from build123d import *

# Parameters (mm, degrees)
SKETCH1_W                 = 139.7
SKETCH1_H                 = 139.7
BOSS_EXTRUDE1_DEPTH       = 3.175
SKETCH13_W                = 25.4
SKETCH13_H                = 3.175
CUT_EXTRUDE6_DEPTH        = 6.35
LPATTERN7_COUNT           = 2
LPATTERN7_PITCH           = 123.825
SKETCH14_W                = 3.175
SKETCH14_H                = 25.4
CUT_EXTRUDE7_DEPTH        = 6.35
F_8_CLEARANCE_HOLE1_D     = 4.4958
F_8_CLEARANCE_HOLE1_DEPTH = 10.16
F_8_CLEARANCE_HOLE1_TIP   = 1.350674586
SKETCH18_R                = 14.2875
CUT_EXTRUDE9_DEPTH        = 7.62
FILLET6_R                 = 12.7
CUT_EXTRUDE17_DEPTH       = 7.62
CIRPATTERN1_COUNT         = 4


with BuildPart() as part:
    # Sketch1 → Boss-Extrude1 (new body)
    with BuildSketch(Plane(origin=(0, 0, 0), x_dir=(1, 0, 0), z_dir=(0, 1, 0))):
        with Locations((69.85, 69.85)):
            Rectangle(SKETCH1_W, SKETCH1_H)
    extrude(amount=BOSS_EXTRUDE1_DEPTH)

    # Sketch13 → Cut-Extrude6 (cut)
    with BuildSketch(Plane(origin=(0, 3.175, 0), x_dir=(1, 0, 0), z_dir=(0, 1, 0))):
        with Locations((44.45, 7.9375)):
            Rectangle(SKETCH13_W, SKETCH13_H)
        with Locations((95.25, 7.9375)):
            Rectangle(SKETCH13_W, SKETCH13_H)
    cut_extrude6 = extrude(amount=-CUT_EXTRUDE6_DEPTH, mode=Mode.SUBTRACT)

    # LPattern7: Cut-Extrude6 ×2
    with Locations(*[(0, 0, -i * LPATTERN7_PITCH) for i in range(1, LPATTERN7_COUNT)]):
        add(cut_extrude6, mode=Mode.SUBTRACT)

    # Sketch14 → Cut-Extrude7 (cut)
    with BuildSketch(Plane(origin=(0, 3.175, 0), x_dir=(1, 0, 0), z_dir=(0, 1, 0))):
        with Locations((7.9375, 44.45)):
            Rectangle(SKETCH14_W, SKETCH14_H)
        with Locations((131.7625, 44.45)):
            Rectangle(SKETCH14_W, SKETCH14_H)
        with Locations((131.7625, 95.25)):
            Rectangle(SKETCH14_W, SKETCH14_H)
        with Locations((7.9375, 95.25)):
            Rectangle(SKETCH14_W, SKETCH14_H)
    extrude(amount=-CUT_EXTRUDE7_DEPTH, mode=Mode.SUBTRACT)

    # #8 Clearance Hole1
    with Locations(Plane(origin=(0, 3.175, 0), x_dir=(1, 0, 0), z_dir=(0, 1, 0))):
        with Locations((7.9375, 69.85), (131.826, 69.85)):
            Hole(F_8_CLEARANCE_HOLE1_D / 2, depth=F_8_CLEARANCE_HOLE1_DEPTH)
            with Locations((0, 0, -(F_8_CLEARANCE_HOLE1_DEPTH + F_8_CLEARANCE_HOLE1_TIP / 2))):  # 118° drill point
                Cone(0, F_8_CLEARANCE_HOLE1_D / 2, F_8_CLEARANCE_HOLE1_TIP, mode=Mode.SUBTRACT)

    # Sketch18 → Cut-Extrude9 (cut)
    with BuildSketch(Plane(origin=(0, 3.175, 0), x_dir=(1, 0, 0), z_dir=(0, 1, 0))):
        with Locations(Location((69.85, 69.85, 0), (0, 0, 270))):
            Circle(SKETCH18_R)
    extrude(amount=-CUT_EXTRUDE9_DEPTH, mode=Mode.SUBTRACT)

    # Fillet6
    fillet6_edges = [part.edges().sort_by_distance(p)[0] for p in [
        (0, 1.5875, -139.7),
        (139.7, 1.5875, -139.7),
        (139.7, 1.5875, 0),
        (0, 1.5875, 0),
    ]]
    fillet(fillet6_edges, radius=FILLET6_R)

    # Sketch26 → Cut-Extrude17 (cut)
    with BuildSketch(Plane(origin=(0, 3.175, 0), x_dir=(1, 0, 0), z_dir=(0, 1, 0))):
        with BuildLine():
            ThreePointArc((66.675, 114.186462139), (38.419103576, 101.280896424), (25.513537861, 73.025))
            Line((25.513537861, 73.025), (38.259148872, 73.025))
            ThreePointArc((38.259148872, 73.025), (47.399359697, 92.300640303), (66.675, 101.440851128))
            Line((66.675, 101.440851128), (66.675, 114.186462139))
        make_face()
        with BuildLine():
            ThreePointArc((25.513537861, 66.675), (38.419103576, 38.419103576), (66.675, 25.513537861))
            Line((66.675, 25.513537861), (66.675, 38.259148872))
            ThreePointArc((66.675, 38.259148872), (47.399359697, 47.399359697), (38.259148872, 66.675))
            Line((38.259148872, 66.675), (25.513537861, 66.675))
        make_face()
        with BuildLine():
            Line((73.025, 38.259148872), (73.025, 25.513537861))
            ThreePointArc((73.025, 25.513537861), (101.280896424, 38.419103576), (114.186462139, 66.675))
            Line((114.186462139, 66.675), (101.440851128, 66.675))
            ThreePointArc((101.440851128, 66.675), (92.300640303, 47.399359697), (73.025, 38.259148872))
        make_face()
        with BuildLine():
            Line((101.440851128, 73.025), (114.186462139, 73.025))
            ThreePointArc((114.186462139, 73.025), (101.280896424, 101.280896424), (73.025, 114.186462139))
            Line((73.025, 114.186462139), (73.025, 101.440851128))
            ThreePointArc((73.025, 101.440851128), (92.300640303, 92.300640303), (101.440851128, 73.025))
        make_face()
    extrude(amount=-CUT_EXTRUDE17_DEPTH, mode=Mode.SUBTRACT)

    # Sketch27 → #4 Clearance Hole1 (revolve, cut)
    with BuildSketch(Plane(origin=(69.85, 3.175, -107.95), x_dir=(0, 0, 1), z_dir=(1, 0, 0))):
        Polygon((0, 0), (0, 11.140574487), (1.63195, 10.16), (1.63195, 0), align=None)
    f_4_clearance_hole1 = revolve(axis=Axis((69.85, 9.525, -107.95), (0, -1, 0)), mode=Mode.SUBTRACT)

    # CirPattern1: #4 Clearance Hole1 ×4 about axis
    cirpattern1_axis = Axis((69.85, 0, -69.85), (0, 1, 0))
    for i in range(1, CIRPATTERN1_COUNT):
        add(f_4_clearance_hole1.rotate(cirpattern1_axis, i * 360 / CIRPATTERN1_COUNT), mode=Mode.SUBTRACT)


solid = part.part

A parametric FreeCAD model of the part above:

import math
import FreeCAD as App
import Part
import Sketcher
Q = App.Units.Quantity


def edges_at(feature, points):
    """Names of the edges that pass closest to the given points."""
    edges = feature.Shape.Edges
    near = lambda p: min(range(len(edges)), key=lambda i: edges[i].distToShape(Part.Vertex(*p))[0])
    return sorted({f"Edge{near(p) + 1}" for p in points})

doc = App.newDocument("Part")
params = doc.addObject("Spreadsheet::Sheet", "Params")
for row, (alias, value) in enumerate([
    ("sketch1_width", "5.5 in"),
    ("pad1_length", "0.125 in"),
    ("sketch2_width", "1 in"),
    ("sketch2_height", "0.125 in"),
    ("pocket1_length", "0.25 in"),
    ("linearpattern_pitch", "4.875 in"),
    ("sketch3_height", "1 in"),
    ("sketch3_width", "0.125 in"),
    ("pocket2_length", "0.25 in"),
    ("sketch4_diameter", "0.177 in"),
    ("hole_diameter", "0.177 in"),
    ("hole_depth", "0.4 in"),
    ("sketch5_diameter", "1.125 in"),
    ("pocket3_length", "0.3 in"),
    ("fillet_radius", "0.5 in"),
    ("sketch6_radius", "1.75 in"),
    ("sketch6_radius2", "1.25 in"),
    ("pocket4_length", "0.3 in"),
    ("sketch7_width", "0.4 in"),
    ("groove_angle", "360 deg"),
], start=1):
    params.set(f"A{row}", alias)
    params.set(f"B{row}", "=" + value)
    params.setAlias(f"B{row}", alias)

body = doc.addObject("PartDesign::Body", "Body")

# Sketch on XZ plane
sketch1 = body.newObject("Sketcher::SketchObject", "Sketch")
sketch1.AttachmentSupport = (doc.getObject("XZ_Plane"), [""])
sketch1.MapMode = "FlatFace"
sketch1.addGeometry([
    Part.LineSegment(App.Vector(0, -139.7, 0), App.Vector(0, 0, 0)),
    Part.LineSegment(App.Vector(0, 0, 0), App.Vector(139.7, 0, 0)),
    Part.LineSegment(App.Vector(139.7, 0, 0), App.Vector(139.7, -139.7, 0)),
    Part.LineSegment(App.Vector(139.7, -139.7, 0), App.Vector(0, -139.7, 0)),
], False)
sketch1.addConstraint([
    Sketcher.Constraint("Coincident", 0, 2, 1, 1),
    Sketcher.Constraint("Coincident", 1, 2, 2, 1),
    Sketcher.Constraint("Coincident", 2, 2, 3, 1),
    Sketcher.Constraint("Coincident", 3, 2, 0, 1),
    Sketcher.Constraint("Vertical", 0),
    Sketcher.Constraint("Horizontal", 1),
    Sketcher.Constraint("Vertical", 2),
    Sketcher.Constraint("Horizontal", 3),
    Sketcher.Constraint("Coincident", 0, 2, -1, 1),
    Sketcher.Constraint("Equal", 3, 0),
    Sketcher.Constraint("DistanceX", 1, 1, 1, 2, Q("5.5 in")),
])
sketch1.setExpression("Constraints[10]", "Params.sketch1_width")
pad1 = body.newObject("PartDesign::Pad", "Pad")
pad1.Profile = sketch1
pad1.setExpression("Length", "Params.pad1_length")
pad1.Reversed = True

# Sketch on XZ plane
sketch2 = body.newObject("Sketcher::SketchObject", "Sketch001")
sketch2.AttachmentSupport = (doc.getObject("XZ_Plane"), [""])
sketch2.MapMode = "FlatFace"
sketch2.AttachmentOffset = App.Placement(App.Vector(0, 0, -0.125 * 25.4), App.Rotation())
sketch2.addGeometry([
    Part.LineSegment(App.Vector(31.75, -9.525, 0), App.Vector(31.75, -6.35, 0)),  # 0
    Part.LineSegment(App.Vector(31.75, -6.35, 0), App.Vector(57.15, -6.35, 0)),  # 1
    Part.LineSegment(App.Vector(57.15, -6.35, 0), App.Vector(57.15, -9.525, 0)),  # 2
    Part.LineSegment(App.Vector(57.15, -9.525, 0), App.Vector(31.75, -9.525, 0)),  # 3
    Part.LineSegment(App.Vector(82.55, -9.525, 0), App.Vector(82.55, -6.35, 0)),  # 4
    Part.LineSegment(App.Vector(82.55, -6.35, 0), App.Vector(107.95, -6.35, 0)),  # 5
    Part.LineSegment(App.Vector(107.95, -6.35, 0), App.Vector(107.95, -9.525, 0)),  # 6
    Part.LineSegment(App.Vector(107.95, -9.525, 0), App.Vector(82.55, -9.525, 0)),  # 7
], False)
sketch2.addConstraint([
    Sketcher.Constraint("Coincident", 0, 2, 1, 1),
    Sketcher.Constraint("Coincident", 1, 2, 2, 1),
    Sketcher.Constraint("Coincident", 2, 2, 3, 1),
    Sketcher.Constraint("Coincident", 3, 2, 0, 1),
    Sketcher.Constraint("Coincident", 4, 2, 5, 1),
    Sketcher.Constraint("Coincident", 5, 2, 6, 1),
    Sketcher.Constraint("Coincident", 6, 2, 7, 1),
    Sketcher.Constraint("Coincident", 7, 2, 4, 1),
    Sketcher.Constraint("Vertical", 0),
    Sketcher.Constraint("Horizontal", 1),
    Sketcher.Constraint("Vertical", 2),
    Sketcher.Constraint("Horizontal", 3),
    Sketcher.Constraint("Vertical", 4),
    Sketcher.Constraint("Horizontal", 5),
    Sketcher.Constraint("Vertical", 6),
    Sketcher.Constraint("Horizontal", 7),
    Sketcher.Constraint("Horizontal", 1, 2, 4, 2),
    Sketcher.Constraint("Horizontal", 3, 2, 6, 2),
    Sketcher.Constraint("Equal", 3, 5),
    Sketcher.Constraint("DistanceX", 1, 1, 1, 2, Q("1 in")),
    Sketcher.Constraint("DistanceX", 1, 2, 4, 2, Q("1 in")),
    Sketcher.Constraint("DistanceY", 0, 1, 0, 2, Q("0.125 in")),
    Sketcher.Constraint("DistanceX", -1, 1, 0, 2, Q("1.25 in")),
    Sketcher.Constraint("DistanceY", 0, 2, -1, 1, Q("0.25 in")),
])
sketch2.setExpression("Constraints[19]", "Params.sketch2_width")
sketch2.setExpression("Constraints[21]", "Params.sketch2_height")
pocket1 = body.newObject("PartDesign::Pocket", "Pocket")
pocket1.Profile = sketch2
pocket1.setExpression("Length", "Params.pocket1_length")
pocket1.Reversed = True
doc.recompute()

linearpattern = body.newObject("PartDesign::LinearPattern", "LinearPattern")
linearpattern.Originals = [pocket1]
linearpattern.Direction = (doc.getObject("Z_Axis"), [""])
linearpattern.Mode = "offset"
linearpattern.setExpression("Offset", "Params.linearpattern_pitch")
linearpattern.Occurrences = 2
linearpattern.Reversed = True
body.Tip = linearpattern

# Sketch on XZ plane
sketch3 = body.newObject("Sketcher::SketchObject", "Sketch002")
sketch3.AttachmentSupport = (doc.getObject("XZ_Plane"), [""])
sketch3.MapMode = "FlatFace"
sketch3.AttachmentOffset = App.Placement(App.Vector(0, 0, -0.125 * 25.4), App.Rotation())
sketch3.addGeometry([
    Part.LineSegment(App.Vector(6.35, -57.15, 0), App.Vector(6.35, -31.75, 0)),  # 0
    Part.LineSegment(App.Vector(6.35, -31.75, 0), App.Vector(9.525, -31.75, 0)),  # 1
    Part.LineSegment(App.Vector(9.525, -31.75, 0), App.Vector(9.525, -57.15, 0)),  # 2
    Part.LineSegment(App.Vector(9.525, -57.15, 0), App.Vector(6.35, -57.15, 0)),  # 3
    Part.LineSegment(App.Vector(130.175, -57.15, 0), App.Vector(130.175, -31.75, 0)),  # 4
    Part.LineSegment(App.Vector(130.175, -31.75, 0), App.Vector(133.35, -31.75, 0)),  # 5
    Part.LineSegment(App.Vector(133.35, -31.75, 0), App.Vector(133.35, -57.15, 0)),  # 6
    Part.LineSegment(App.Vector(133.35, -57.15, 0), App.Vector(130.175, -57.15, 0)),  # 7
    Part.LineSegment(App.Vector(130.175, -107.95, 0), App.Vector(130.175, -82.55, 0)),  # 8
    Part.LineSegment(App.Vector(130.175, -82.55, 0), App.Vector(133.35, -82.55, 0)),  # 9
    Part.LineSegment(App.Vector(133.35, -82.55, 0), App.Vector(133.35, -107.95, 0)),  # 10
    Part.LineSegment(App.Vector(133.35, -107.95, 0), App.Vector(130.175, -107.95, 0)),  # 11
    Part.LineSegment(App.Vector(6.35, -107.95, 0), App.Vector(6.35, -82.55, 0)),  # 12
    Part.LineSegment(App.Vector(6.35, -82.55, 0), App.Vector(9.525, -82.55, 0)),  # 13
    Part.LineSegment(App.Vector(9.525, -82.55, 0), App.Vector(9.525, -107.95, 0)),  # 14
    Part.LineSegment(App.Vector(9.525, -107.95, 0), App.Vector(6.35, -107.95, 0)),  # 15
], False)
sketch3.addConstraint([
    Sketcher.Constraint("Coincident", 0, 2, 1, 1),
    Sketcher.Constraint("Coincident", 1, 2, 2, 1),
    Sketcher.Constraint("Coincident", 2, 2, 3, 1),
    Sketcher.Constraint("Coincident", 3, 2, 0, 1),
    Sketcher.Constraint("Coincident", 4, 2, 5, 1),
    Sketcher.Constraint("Coincident", 5, 2, 6, 1),
    Sketcher.Constraint("Coincident", 6, 2, 7, 1),
    Sketcher.Constraint("Coincident", 7, 2, 4, 1),
    Sketcher.Constraint("Coincident", 8, 2, 9, 1),
    Sketcher.Constraint("Coincident", 9, 2, 10, 1),
    Sketcher.Constraint("Coincident", 10, 2, 11, 1),
    Sketcher.Constraint("Coincident", 11, 2, 8, 1),
    Sketcher.Constraint("Coincident", 12, 2, 13, 1),
    Sketcher.Constraint("Coincident", 13, 2, 14, 1),
    Sketcher.Constraint("Coincident", 14, 2, 15, 1),
    Sketcher.Constraint("Coincident", 15, 2, 12, 1),
    Sketcher.Constraint("Vertical", 0),
    Sketcher.Constraint("Horizontal", 1),
    Sketcher.Constraint("Vertical", 2),
    Sketcher.Constraint("Horizontal", 3),
    Sketcher.Constraint("Vertical", 4),
    Sketcher.Constraint("Horizontal", 5),
    Sketcher.Constraint("Vertical", 6),
    Sketcher.Constraint("Horizontal", 7),
    Sketcher.Constraint("Vertical", 8),
    Sketcher.Constraint("Horizontal", 9),
    Sketcher.Constraint("Vertical", 10),
    Sketcher.Constraint("Horizontal", 11),
    Sketcher.Constraint("Vertical", 12),
    Sketcher.Constraint("Horizontal", 13),
    Sketcher.Constraint("Vertical", 14),
    Sketcher.Constraint("Horizontal", 15),
    Sketcher.Constraint("Horizontal", 1, 2, 4, 2),
    Sketcher.Constraint("Horizontal", 3, 2, 6, 2),
    Sketcher.Constraint("Horizontal", 9, 2, 12, 2),
    Sketcher.Constraint("Horizontal", 11, 2, 14, 2),
    Sketcher.Constraint("Vertical", 7, 2, 8, 2),
    Sketcher.Constraint("Vertical", 6, 2, 9, 2),
    Sketcher.Constraint("Vertical", 3, 2, 12, 2),
    Sketcher.Constraint("Vertical", 2, 2, 13, 2),
    Sketcher.Constraint("Equal", 3, 5),
    Sketcher.Constraint("Equal", 6, 8),
    Sketcher.Constraint("DistanceY", 0, 1, 0, 2, Q("1 in")),
    Sketcher.Constraint("DistanceX", 0, 2, 5, 2, Q("5 in")),
    Sketcher.Constraint("DistanceY", 8, 2, 7, 2, Q("1 in")),
    Sketcher.Constraint("DistanceX", 1, 1, 1, 2, Q("0.125 in")),
    Sketcher.Constraint("DistanceX", -1, 1, 0, 2, Q("0.25 in")),
    Sketcher.Constraint("DistanceY", 0, 2, -1, 1, Q("1.25 in")),
])
sketch3.setExpression("Constraints[42]", "Params.sketch3_height")
sketch3.setExpression("Constraints[45]", "Params.sketch3_width")
pocket2 = body.newObject("PartDesign::Pocket", "Pocket001")
pocket2.Profile = sketch3
pocket2.setExpression("Length", "Params.pocket2_length")
pocket2.Reversed = True

# Sketch on XZ plane
sketch4 = body.newObject("Sketcher::SketchObject", "Sketch003")
sketch4.AttachmentSupport = (doc.getObject("XZ_Plane"), [""])
sketch4.MapMode = "FlatFace"
sketch4.AttachmentOffset = App.Placement(App.Vector(0, 0, -0.125 * 25.4), App.Rotation())
sketch4.addGeometry([
    Part.Circle(App.Vector(7.9375, -69.85, 0), App.Vector(0, 0, 1), 2.2479),
    Part.Circle(App.Vector(131.826, -69.85, 0), App.Vector(0, 0, 1), 2.2479),
], False)
sketch4.addConstraint([
    Sketcher.Constraint("Equal", 0, 1),
    Sketcher.Constraint("Horizontal", 0, 3, 1, 3),
    Sketcher.Constraint("Diameter", 0, Q("0.177 in")),
    Sketcher.Constraint("DistanceY", 0, 3, -1, 1, Q("2.75 in")),
    Sketcher.Constraint("DistanceX", -1, 1, 1, 3, Q("5.19 in")),
    Sketcher.Constraint("DistanceX", -1, 1, 0, 3, Q("0.3125 in")),
])
sketch4.setExpression("Constraints[2]", "Params.sketch4_diameter")
doc.recompute()
hole = body.newObject("PartDesign::Hole", "Hole")
hole.Profile = sketch4
hole.ThreadType = "None"
hole.setExpression("Diameter", "Params.hole_diameter")
hole.DepthType = "Dimension"
hole.setExpression("Depth", "Params.hole_depth")
hole.DrillPoint = "Angled"
hole.DrillPointAngle = 118
hole.Reversed = True

# Sketch on XZ plane
sketch5 = body.newObject("Sketcher::SketchObject", "Sketch004")
sketch5.AttachmentSupport = (doc.getObject("XZ_Plane"), [""])
sketch5.MapMode = "FlatFace"
sketch5.AttachmentOffset = App.Placement(App.Vector(0, 0, -0.125 * 25.4), App.Rotation())
sketch5.addGeometry(Part.Circle(App.Vector(69.85, -69.85, 0), App.Vector(0, 0, 1), 14.2875), False)
sketch5.addConstraint([
    Sketcher.Constraint("Diameter", 0, Q("1.125 in")),
    Sketcher.Constraint("DistanceX", -1, 1, 0, 3, Q("2.75 in")),
    Sketcher.Constraint("DistanceY", 0, 3, -1, 1, Q("2.75 in")),
])
sketch5.setExpression("Constraints[0]", "Params.sketch5_diameter")
pocket3 = body.newObject("PartDesign::Pocket", "Pocket002")
pocket3.Profile = sketch5
pocket3.setExpression("Length", "Params.pocket3_length")
pocket3.Reversed = True
doc.recompute()

fillet = body.newObject("PartDesign::Fillet", "Fillet")
fillet.Base = (pocket3, edges_at(pocket3, [
    (0, 1.587, -139.7),
    (139.7, 1.587, -139.7),
    (139.7, 1.587, 0),
    (0, 1.587, 0),
]))
fillet.setExpression("Radius", "Params.fillet_radius")

# Sketch on XZ plane
sketch6 = body.newObject("Sketcher::SketchObject", "Sketch005")
sketch6.AttachmentSupport = (doc.getObject("XZ_Plane"), [""])
sketch6.MapMode = "FlatFace"
sketch6.AttachmentOffset = App.Placement(App.Vector(0, 0, -0.125 * 25.4), App.Rotation())
sketch6.addGeometry([
    Part.ArcOfCircle(Part.Circle(App.Vector(69.85, -69.85, 0), App.Vector(0, 0, 1), 44.45), math.radians(-175.903956), math.radians(-94.096044)),  # 0
    Part.LineSegment(App.Vector(25.513538, -73.025, 0), App.Vector(38.259149, -73.025, 0)),  # 1
    Part.ArcOfCircle(Part.Circle(App.Vector(69.85, -69.85, 0), App.Vector(0, 0, 1), 31.75), math.radians(-174.26083), math.radians(-95.73917)),  # 2
    Part.LineSegment(App.Vector(66.675, -101.440851, 0), App.Vector(66.675, -114.186462, 0)),  # 3
    Part.ArcOfCircle(Part.Circle(App.Vector(69.85, -69.85, 0), App.Vector(0, 0, 1), 44.45), math.radians(94.096044), math.radians(175.903956)),  # 4
    Part.LineSegment(App.Vector(66.675, -25.513538, 0), App.Vector(66.675, -38.259149, 0)),  # 5
    Part.ArcOfCircle(Part.Circle(App.Vector(69.85, -69.85, 0), App.Vector(0, 0, 1), 31.75), math.radians(95.73917), math.radians(174.26083)),  # 6
    Part.LineSegment(App.Vector(38.259149, -66.675, 0), App.Vector(25.513538, -66.675, 0)),  # 7
    Part.LineSegment(App.Vector(73.025, -38.259149, 0), App.Vector(73.025, -25.513538, 0)),  # 8
    Part.ArcOfCircle(Part.Circle(App.Vector(69.85, -69.85, 0), App.Vector(0, 0, 1), 44.45), math.radians(4.096044), math.radians(85.903956)),  # 9
    Part.LineSegment(App.Vector(114.186462, -66.675, 0), App.Vector(101.440851, -66.675, 0)),  # 10
    Part.ArcOfCircle(Part.Circle(App.Vector(69.85, -69.85, 0), App.Vector(0, 0, 1), 31.75), math.radians(5.73917), math.radians(84.26083)),  # 11
    Part.LineSegment(App.Vector(101.440851, -73.025, 0), App.Vector(114.186462, -73.025, 0)),  # 12
    Part.ArcOfCircle(Part.Circle(App.Vector(69.85, -69.85, 0), App.Vector(0, 0, 1), 44.45), math.radians(-85.903956), math.radians(-4.096044)),  # 13
    Part.LineSegment(App.Vector(73.025, -114.186462, 0), App.Vector(73.025, -101.440851, 0)),  # 14
    Part.ArcOfCircle(Part.Circle(App.Vector(69.85, -69.85, 0), App.Vector(0, 0, 1), 31.75), math.radians(-84.26083), math.radians(-5.73917)),  # 15
], False)
sketch6.addConstraint([
    Sketcher.Constraint("Coincident", 0, 1, 1, 1),
    Sketcher.Constraint("Coincident", 1, 2, 2, 1),
    Sketcher.Constraint("Coincident", 2, 2, 3, 1),
    Sketcher.Constraint("Coincident", 3, 2, 0, 2),
    Sketcher.Constraint("Coincident", 4, 1, 5, 1),
    Sketcher.Constraint("Coincident", 5, 2, 6, 1),
    Sketcher.Constraint("Coincident", 6, 2, 7, 1),
    Sketcher.Constraint("Coincident", 7, 2, 4, 2),
    Sketcher.Constraint("Coincident", 8, 2, 9, 2),
    Sketcher.Constraint("Coincident", 9, 1, 10, 1),
    Sketcher.Constraint("Coincident", 10, 2, 11, 1),
    Sketcher.Constraint("Coincident", 11, 2, 8, 1),
    Sketcher.Constraint("Coincident", 12, 2, 13, 2),
    Sketcher.Constraint("Coincident", 13, 1, 14, 1),
    Sketcher.Constraint("Coincident", 14, 2, 15, 1),
    Sketcher.Constraint("Coincident", 15, 2, 12, 1),
    Sketcher.Constraint("Horizontal", 1),
    Sketcher.Constraint("Vertical", 3),
    Sketcher.Constraint("Vertical", 5),
    Sketcher.Constraint("Horizontal", 7),
    Sketcher.Constraint("Vertical", 8),
    Sketcher.Constraint("Horizontal", 10),
    Sketcher.Constraint("Horizontal", 12),
    Sketcher.Constraint("Vertical", 14),
    Sketcher.Constraint("Coincident", 2, 3, 0, 3),
    Sketcher.Constraint("Coincident", 4, 3, 0, 3),
    Sketcher.Constraint("Coincident", 6, 3, 0, 3),
    Sketcher.Constraint("Coincident", 9, 3, 0, 3),
    Sketcher.Constraint("Coincident", 11, 3, 0, 3),
    Sketcher.Constraint("Coincident", 13, 3, 0, 3),
    Sketcher.Constraint("Coincident", 15, 3, 0, 3),
    Sketcher.Constraint("Equal", 0, 4),
    Sketcher.Constraint("Equal", 2, 6),
    Sketcher.Constraint("Equal", 4, 9),
    Sketcher.Constraint("Equal", 6, 11),
    Sketcher.Constraint("Equal", 9, 13),
    Sketcher.Constraint("Equal", 11, 15),
    Sketcher.Constraint("Horizontal", 4, 1, 8, 2),
    Sketcher.Constraint("Horizontal", 7, 2, 9, 1),
    Sketcher.Constraint("Horizontal", 1, 2, 12, 2),
    Sketcher.Constraint("Horizontal", 3, 2, 13, 1),
    Sketcher.Constraint("Vertical", 3, 2, 4, 1),
    Sketcher.Constraint("Vertical", 1, 2, 6, 2),
    Sketcher.Constraint("Equal", 12, 3),
    Sketcher.Constraint("Radius", 0, Q("1.75 in")),
    Sketcher.Constraint("Radius", 2, Q("1.25 in")),
    Sketcher.Constraint("DistanceX", -1, 1, 0, 3, Q("2.75 in")),
    Sketcher.Constraint("DistanceY", 0, 3, -1, 1, Q("2.75 in")),
    Sketcher.Constraint("DistanceY", 1, 2, 6, 2, Q("0.25 in")),
])
sketch6.setExpression("Constraints[44]", "Params.sketch6_radius")
sketch6.setExpression("Constraints[45]", "Params.sketch6_radius2")
pocket4 = body.newObject("PartDesign::Pocket", "Pocket003")
pocket4.Profile = sketch6
pocket4.setExpression("Length", "Params.pocket4_length")
pocket4.Reversed = True

# Sketch on YZ plane
sketch7 = body.newObject("Sketcher::SketchObject", "Sketch006")
sketch7.AttachmentSupport = (doc.getObject("YZ_Plane"), [""])
sketch7.MapMode = "FlatFace"
sketch7.AttachmentOffset = App.Placement(App.Vector(0, 0, 2.75 * 25.4), App.Rotation())
sketch7.addGeometry([
    Part.LineSegment(App.Vector(-7.965574, -107.95, 0), App.Vector(3.175, -107.95, 0)),
    Part.LineSegment(App.Vector(3.175, -107.95, 0), App.Vector(3.175, -106.31805, 0)),
    Part.LineSegment(App.Vector(3.175, -106.31805, 0), App.Vector(-6.985, -106.31805, 0)),
    Part.LineSegment(App.Vector(-6.985, -106.31805, 0), App.Vector(-7.965574, -107.95, 0)),
], False)
sketch7.addGeometry(Part.LineSegment(App.Vector(3.175, -107.95, 0), App.Vector(-7.965574, -107.95, 0)), True)  # axis
sketch7.addConstraint([
    Sketcher.Constraint("Coincident", 0, 2, 1, 1),
    Sketcher.Constraint("Coincident", 1, 2, 2, 1),
    Sketcher.Constraint("Coincident", 2, 2, 3, 1),
    Sketcher.Constraint("Coincident", 3, 2, 0, 1),
    Sketcher.Constraint("Horizontal", 0),
    Sketcher.Constraint("Vertical", 1),
    Sketcher.Constraint("Horizontal", 2),
    Sketcher.Constraint("Horizontal", 4),
    Sketcher.Constraint("Coincident", 4, 1, 0, 2),
    Sketcher.Constraint("Equal", 0, 4),
    Sketcher.Constraint("DistanceX", 2, 2, 2, 1, Q("0.4 in")),
    Sketcher.Constraint("Angle", 3, Q("-121 deg")),
    Sketcher.Constraint("DistanceY", 0, 2, -1, 1, Q("4.25 in")),
    Sketcher.Constraint("DistanceX", -1, 1, 0, 2, Q("0.125 in")),
    Sketcher.Constraint("DistanceY", 1, 1, 1, 2, 1.63195),
])
sketch7.setExpression("Constraints[10]", "Params.sketch7_width")
groove = body.newObject("PartDesign::Groove", "Groove")
groove.Profile = sketch7
groove.ReferenceAxis = (sketch7, ["Axis0"])
groove.setExpression("Angle", "Params.groove_angle")
doc.recompute()

datumline = body.newObject("PartDesign::Line", "DatumLine")
datumline.Placement = App.Placement(App.Vector(69.85, 0, -69.85), App.Rotation(App.Vector(0, 0, 1), App.Vector(0, 1, 0)))
polarpattern = body.newObject("PartDesign::PolarPattern", "PolarPattern")
polarpattern.Originals = [groove]
polarpattern.Axis = (datumline, [""])
polarpattern.Angle = 360
polarpattern.Occurrences = 4
body.Tip = polarpattern

doc.recompute()
